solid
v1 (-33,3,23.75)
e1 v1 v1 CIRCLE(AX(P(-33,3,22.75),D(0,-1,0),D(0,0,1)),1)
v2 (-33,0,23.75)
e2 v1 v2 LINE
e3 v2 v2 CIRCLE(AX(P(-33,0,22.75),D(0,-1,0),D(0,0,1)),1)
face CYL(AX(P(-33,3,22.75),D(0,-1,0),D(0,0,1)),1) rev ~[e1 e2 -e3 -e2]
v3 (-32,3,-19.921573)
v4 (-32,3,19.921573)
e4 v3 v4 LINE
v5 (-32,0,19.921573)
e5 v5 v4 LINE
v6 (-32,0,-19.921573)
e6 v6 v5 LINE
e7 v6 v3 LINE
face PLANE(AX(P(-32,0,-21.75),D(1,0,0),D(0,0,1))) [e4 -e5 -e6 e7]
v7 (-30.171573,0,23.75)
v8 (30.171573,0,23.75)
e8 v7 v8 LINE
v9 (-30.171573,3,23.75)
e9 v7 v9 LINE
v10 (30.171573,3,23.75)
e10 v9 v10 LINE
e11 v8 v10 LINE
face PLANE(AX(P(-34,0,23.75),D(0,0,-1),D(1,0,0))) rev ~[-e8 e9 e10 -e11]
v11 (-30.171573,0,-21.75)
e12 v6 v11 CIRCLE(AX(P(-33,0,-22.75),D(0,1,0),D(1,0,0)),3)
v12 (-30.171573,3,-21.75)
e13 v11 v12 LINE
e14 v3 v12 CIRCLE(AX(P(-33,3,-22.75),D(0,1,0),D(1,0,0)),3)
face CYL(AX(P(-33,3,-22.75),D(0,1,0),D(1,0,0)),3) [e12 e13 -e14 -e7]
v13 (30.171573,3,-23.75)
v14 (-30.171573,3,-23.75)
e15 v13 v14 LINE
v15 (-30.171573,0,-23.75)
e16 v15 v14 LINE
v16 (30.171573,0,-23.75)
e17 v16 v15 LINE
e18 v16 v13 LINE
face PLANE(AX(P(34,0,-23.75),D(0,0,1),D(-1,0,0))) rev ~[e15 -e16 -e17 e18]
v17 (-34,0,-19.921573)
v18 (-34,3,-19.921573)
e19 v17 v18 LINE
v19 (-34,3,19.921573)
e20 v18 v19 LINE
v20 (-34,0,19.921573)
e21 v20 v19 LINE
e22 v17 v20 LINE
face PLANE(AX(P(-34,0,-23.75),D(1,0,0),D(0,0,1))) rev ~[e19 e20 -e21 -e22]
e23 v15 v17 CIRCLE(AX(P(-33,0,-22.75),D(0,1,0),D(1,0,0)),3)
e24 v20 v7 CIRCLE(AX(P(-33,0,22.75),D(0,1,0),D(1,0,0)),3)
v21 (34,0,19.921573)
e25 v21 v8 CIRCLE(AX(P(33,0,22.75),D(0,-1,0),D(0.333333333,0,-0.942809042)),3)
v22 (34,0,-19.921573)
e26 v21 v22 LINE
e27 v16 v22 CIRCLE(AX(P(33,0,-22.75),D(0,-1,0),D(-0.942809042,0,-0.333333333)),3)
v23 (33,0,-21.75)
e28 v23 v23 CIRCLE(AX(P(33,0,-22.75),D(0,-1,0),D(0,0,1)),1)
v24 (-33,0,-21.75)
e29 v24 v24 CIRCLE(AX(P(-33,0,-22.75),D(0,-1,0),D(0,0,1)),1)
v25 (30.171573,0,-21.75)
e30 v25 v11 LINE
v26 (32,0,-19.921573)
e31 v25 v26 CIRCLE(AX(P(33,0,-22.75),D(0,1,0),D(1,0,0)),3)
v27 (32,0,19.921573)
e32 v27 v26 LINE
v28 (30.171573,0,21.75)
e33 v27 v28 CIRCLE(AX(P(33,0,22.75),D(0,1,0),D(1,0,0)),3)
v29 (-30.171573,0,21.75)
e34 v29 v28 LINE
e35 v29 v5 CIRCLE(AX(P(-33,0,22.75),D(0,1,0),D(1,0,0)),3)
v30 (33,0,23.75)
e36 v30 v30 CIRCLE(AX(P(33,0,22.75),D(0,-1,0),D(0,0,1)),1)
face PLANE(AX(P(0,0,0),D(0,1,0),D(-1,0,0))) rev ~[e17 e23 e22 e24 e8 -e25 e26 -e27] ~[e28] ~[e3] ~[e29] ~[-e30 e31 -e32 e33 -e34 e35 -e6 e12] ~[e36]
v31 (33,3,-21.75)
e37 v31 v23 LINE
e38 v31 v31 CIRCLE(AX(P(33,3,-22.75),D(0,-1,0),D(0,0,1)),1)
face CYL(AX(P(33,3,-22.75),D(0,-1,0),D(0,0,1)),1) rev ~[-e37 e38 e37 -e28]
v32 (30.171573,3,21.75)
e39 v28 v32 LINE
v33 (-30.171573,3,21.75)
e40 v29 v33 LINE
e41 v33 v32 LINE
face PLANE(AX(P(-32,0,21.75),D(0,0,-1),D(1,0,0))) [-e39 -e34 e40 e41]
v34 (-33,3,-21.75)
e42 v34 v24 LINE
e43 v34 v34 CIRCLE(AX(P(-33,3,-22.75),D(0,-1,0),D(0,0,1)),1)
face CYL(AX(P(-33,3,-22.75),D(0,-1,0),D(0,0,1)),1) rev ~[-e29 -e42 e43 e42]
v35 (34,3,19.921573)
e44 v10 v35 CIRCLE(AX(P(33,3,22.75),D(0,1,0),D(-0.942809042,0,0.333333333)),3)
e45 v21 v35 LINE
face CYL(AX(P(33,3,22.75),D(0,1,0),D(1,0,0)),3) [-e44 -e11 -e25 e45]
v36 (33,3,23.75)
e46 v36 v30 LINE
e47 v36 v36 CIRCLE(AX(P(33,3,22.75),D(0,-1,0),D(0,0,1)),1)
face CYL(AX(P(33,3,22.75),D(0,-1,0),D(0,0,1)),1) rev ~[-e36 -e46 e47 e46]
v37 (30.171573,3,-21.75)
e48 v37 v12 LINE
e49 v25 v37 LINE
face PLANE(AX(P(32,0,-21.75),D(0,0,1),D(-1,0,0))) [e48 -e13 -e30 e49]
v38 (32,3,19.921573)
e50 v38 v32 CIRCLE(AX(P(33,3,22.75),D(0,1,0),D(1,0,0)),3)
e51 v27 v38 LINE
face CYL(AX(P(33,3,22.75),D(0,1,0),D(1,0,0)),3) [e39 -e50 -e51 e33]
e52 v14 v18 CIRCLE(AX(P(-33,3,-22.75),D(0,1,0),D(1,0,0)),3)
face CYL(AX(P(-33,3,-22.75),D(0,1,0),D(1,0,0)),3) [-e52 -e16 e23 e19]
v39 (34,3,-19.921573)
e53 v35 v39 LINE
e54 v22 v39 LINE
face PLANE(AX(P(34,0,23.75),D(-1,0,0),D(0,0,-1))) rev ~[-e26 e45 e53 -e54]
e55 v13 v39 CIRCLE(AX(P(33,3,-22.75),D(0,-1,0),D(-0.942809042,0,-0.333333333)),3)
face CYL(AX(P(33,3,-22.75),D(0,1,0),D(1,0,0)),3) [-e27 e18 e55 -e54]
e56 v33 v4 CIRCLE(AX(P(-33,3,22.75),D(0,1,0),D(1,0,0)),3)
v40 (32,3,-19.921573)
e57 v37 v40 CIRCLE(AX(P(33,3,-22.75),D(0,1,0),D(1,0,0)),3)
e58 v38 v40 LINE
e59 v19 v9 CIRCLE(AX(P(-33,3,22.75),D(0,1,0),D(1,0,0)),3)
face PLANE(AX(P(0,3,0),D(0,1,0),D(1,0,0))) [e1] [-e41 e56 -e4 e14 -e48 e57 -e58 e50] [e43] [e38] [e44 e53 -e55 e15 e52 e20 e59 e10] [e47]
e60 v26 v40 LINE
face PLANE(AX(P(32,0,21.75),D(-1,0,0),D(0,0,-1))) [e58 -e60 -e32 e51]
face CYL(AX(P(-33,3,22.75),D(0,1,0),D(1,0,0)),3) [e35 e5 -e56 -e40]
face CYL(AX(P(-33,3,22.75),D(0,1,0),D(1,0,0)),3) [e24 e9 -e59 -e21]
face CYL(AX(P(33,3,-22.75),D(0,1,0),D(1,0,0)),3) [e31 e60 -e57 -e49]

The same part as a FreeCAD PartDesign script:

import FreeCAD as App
import Part
import Sketcher
from FreeCAD import Vector
Q = App.Units.Quantity


def add_polygon(sketch, points):
    """Adds a closed chain of lines whose ends are joined by coincident constraints."""
    first, n = sketch.GeometryCount, len(points)
    for a, b in zip(points, points[1:] + points[:1]):
        sketch.addGeometry(Part.LineSegment(App.Vector(*a, 0), App.Vector(*b, 0)), False)
    for i in range(n):
        sketch.addConstraint(Sketcher.Constraint("Coincident", first + i, 2, first + (i + 1) % n, 1))

doc = App.newDocument("Part")
body = doc.addObject("PartDesign::Body", "Body")

# Sketch on XZ plane
sketch1 = doc.addObject("Sketcher::SketchObject", "Sketch")
body.addObject(sketch1)
sketch1.AttachmentSupport = (doc.XZ_Plane, [""])
sketch1.MapMode = "FlatFace"
add_polygon(sketch1, [(34, -24), (-34, -24), (-34, 24), (34, 24)])  # lines 0-3
add_polygon(sketch1, [(-32, 22), (-32, -22), (32, -22), (32, 22)])  # lines 4-7
sketch1.addConstraint(Sketcher.Constraint("Horizontal", 0))
sketch1.addConstraint(Sketcher.Constraint("Vertical", 1))
sketch1.addConstraint(Sketcher.Constraint("Horizontal", 2))
sketch1.addConstraint(Sketcher.Constraint("Vertical", 3))
sketch1.addConstraint(Sketcher.Constraint("Vertical", 4))
sketch1.addConstraint(Sketcher.Constraint("Horizontal", 5))
sketch1.addConstraint(Sketcher.Constraint("Vertical", 6))
sketch1.addConstraint(Sketcher.Constraint("Horizontal", 7))
sketch1.addConstraint(Sketcher.Constraint("Symmetric", 0, 2, 2, 2, -1, 1))
sketch1.addConstraint(Sketcher.Constraint("Symmetric", 4, 2, 6, 2, -1, 1))
sketch1.addConstraint(Sketcher.Constraint("DistanceX", 4, 2, 3, 2, Q("66 mm")))
sketch1.addConstraint(Sketcher.Constraint("DistanceY", 4, 2, 1, 2, Q("45.5 mm")))
sketch1.addConstraint(Sketcher.Constraint("DistanceX", 0, 2, 0, 1, Q("68 mm")))
sketch1.addConstraint(Sketcher.Constraint("DistanceY", 1, 1, 1, 2, Q("47.5 mm")))
pad1 = doc.addObject("PartDesign::Pad", "Pad")
body.addObject(pad1)
pad1.Profile = sketch1
pad1.Length = 3
pad1.Reversed = True

# Sketch on XZ plane
sketch2 = doc.addObject("Sketcher::SketchObject", "Sketch001")
body.addObject(sketch2)
sketch2.AttachmentSupport = (doc.XZ_Plane, [""])
sketch2.MapMode = "FlatFace"
sketch2.AttachmentOffset = App.Placement(Vector(0, 0, -3), App.Rotation())
sketch2.addGeometry(Part.Circle(Vector(-33, -22.8, 0), Vector(0, 0, 1), 3), False)
sketch2.addGeometry(Part.Circle(Vector(33, -22.8, 0), Vector(0, 0, 1), 3), False)
sketch2.addGeometry(Part.Circle(Vector(-33, 22.8, 0), Vector(0, 0, 1), 3), False)
sketch2.addGeometry(Part.Circle(Vector(33, 22.8, 0), Vector(0, 0, 1), 3), False)
sketch2.addConstraint(Sketcher.Constraint("Equal", 0, 1))
sketch2.addConstraint(Sketcher.Constraint("Equal", 1, 2))
sketch2.addConstraint(Sketcher.Constraint("Equal", 2, 3))
sketch2.addConstraint(Sketcher.Constraint("Symmetric", 1, 3, 2, 3, -1, 1))
sketch2.addConstraint(Sketcher.Constraint("Symmetric", 0, 3, 3, 3, -1, 1))
sketch2.addConstraint(Sketcher.Constraint("Symmetric", 0, 3, 1, 3, -2))
sketch2.addConstraint(Sketcher.Constraint("Diameter", 0, Q("6 mm")))
sketch2.addConstraint(Sketcher.Constraint("DistanceX", 0, 3, -1, 1, Q("33 mm")))
sketch2.addConstraint(Sketcher.Constraint("DistanceY", 0, 3, 2, 3, Q("45.5 mm")))
pad2 = doc.addObject("PartDesign::Pad", "Pad001")
body.addObject(pad2)
pad2.Profile = sketch2
pad2.Length = 3

# Sketch on XZ plane
sketch3 = doc.addObject("Sketcher::SketchObject", "Sketch002")
body.addObject(sketch3)
sketch3.AttachmentSupport = (doc.XZ_Plane, [""])
sketch3.MapMode = "FlatFace"
sketch3.AttachmentOffset = App.Placement(Vector(0, 0, -3), App.Rotation())
sketch3.addGeometry(Part.Circle(Vector(-33, -22.8, 0), Vector(0, 0, 1), 1), False)
sketch3.addGeometry(Part.Circle(Vector(33, -22.8, 0), Vector(0, 0, 1), 1), False)
sketch3.addGeometry(Part.Circle(Vector(-33, 22.8, 0), Vector(0, 0, 1), 1), False)
sketch3.addGeometry(Part.Circle(Vector(33, 22.8, 0), Vector(0, 0, 1), 1), False)
sketch3.addConstraint(Sketcher.Constraint("Equal", 0, 1))
sketch3.addConstraint(Sketcher.Constraint("Equal", 1, 2))
sketch3.addConstraint(Sketcher.Constraint("Equal", 2, 3))
sketch3.addConstraint(Sketcher.Constraint("Symmetric", 1, 3, 2, 3, -1, 1))
sketch3.addConstraint(Sketcher.Constraint("Symmetric", 0, 3, 3, 3, -1, 1))
sketch3.addConstraint(Sketcher.Constraint("Symmetric", 0, 3, 1, 3, -2))
sketch3.addConstraint(Sketcher.Constraint("Diameter", 0, Q("2 mm")))
sketch3.addConstraint(Sketcher.Constraint("DistanceX", 0, 3, -1, 1, Q("33 mm")))
sketch3.addConstraint(Sketcher.Constraint("DistanceY", 0, 3, 2, 3, Q("45.5 mm")))
doc.recompute()
hole = doc.addObject("PartDesign::Hole", "Hole")
body.addObject(hole)
hole.Profile = sketch3
hole.ThreadType = "None"
hole.Diameter = 2
hole.DepthType = "Dimension"
hole.Depth = 25
hole.DrillPoint = "Angled"
hole.DrillPointAngle = 118
hole.Reversed = True

doc.recompute()
